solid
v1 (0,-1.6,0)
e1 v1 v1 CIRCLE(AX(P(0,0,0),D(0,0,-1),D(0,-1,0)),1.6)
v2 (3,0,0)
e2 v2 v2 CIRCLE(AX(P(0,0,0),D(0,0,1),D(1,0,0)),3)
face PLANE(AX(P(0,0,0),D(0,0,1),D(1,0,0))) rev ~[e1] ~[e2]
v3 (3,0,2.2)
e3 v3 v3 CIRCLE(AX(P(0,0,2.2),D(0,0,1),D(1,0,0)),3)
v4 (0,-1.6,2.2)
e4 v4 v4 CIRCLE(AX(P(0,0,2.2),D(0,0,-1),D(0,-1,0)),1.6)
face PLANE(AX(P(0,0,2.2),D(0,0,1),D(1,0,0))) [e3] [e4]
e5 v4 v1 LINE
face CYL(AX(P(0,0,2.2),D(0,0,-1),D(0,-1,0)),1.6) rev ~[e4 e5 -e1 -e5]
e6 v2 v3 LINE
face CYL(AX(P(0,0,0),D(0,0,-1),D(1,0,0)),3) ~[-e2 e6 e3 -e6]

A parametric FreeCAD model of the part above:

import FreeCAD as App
import Part
import Sketcher

V = App.Vector
Q = App.Units.Quantity

doc = App.newDocument("Part")
body = doc.addObject("PartDesign::Body", "Body")

# Sketch on XY plane
sketch1 = body.newObject("Sketcher::SketchObject", "Sketch")
sketch1.AttachmentSupport = (doc.getObject("XY_Plane"), [""])
sketch1.MapMode = "FlatFace"
sketch1.addGeometry(Part.Circle(V(0, 0, 0), V(0, 0, 1), 3), False)
sketch1.addConstraint([
    Sketcher.Constraint("Coincident", 0, 3, -1, 1),
    Sketcher.Constraint("Diameter", 0, Q("6 mm")),
])
pad1 = body.newObject("PartDesign::Pad", "Pad")
pad1.Profile = sketch1
pad1.Length = 2.2

# Sketch on XY plane
sketch2 = body.newObject("Sketcher::SketchObject", "Sketch001")
sketch2.AttachmentSupport = (doc.getObject("XY_Plane"), [""])
sketch2.MapMode = "FlatFace"
sketch2.AttachmentOffset = App.Placement(V(0, 0, 2.2), App.Rotation())
sketch2.addGeometry(Part.Circle(V(0, 0, 0), V(0, 0, 1), 1.6), False)
sketch2.addConstraint([
    Sketcher.Constraint("Coincident", 0, 3, -1, 1),
    Sketcher.Constraint("Diameter", 0, Q("3.2 mm")),
])
doc.recompute()
hole = body.newObject("PartDesign::Hole", "Hole")
hole.Profile = sketch2
hole.ThreadType = "None"
hole.Diameter = 3.2
hole.DepthType = "Dimension"
hole.Depth = 101.732
hole.DrillPoint = "Angled"
hole.DrillPointAngle = 118

doc.recompute()
